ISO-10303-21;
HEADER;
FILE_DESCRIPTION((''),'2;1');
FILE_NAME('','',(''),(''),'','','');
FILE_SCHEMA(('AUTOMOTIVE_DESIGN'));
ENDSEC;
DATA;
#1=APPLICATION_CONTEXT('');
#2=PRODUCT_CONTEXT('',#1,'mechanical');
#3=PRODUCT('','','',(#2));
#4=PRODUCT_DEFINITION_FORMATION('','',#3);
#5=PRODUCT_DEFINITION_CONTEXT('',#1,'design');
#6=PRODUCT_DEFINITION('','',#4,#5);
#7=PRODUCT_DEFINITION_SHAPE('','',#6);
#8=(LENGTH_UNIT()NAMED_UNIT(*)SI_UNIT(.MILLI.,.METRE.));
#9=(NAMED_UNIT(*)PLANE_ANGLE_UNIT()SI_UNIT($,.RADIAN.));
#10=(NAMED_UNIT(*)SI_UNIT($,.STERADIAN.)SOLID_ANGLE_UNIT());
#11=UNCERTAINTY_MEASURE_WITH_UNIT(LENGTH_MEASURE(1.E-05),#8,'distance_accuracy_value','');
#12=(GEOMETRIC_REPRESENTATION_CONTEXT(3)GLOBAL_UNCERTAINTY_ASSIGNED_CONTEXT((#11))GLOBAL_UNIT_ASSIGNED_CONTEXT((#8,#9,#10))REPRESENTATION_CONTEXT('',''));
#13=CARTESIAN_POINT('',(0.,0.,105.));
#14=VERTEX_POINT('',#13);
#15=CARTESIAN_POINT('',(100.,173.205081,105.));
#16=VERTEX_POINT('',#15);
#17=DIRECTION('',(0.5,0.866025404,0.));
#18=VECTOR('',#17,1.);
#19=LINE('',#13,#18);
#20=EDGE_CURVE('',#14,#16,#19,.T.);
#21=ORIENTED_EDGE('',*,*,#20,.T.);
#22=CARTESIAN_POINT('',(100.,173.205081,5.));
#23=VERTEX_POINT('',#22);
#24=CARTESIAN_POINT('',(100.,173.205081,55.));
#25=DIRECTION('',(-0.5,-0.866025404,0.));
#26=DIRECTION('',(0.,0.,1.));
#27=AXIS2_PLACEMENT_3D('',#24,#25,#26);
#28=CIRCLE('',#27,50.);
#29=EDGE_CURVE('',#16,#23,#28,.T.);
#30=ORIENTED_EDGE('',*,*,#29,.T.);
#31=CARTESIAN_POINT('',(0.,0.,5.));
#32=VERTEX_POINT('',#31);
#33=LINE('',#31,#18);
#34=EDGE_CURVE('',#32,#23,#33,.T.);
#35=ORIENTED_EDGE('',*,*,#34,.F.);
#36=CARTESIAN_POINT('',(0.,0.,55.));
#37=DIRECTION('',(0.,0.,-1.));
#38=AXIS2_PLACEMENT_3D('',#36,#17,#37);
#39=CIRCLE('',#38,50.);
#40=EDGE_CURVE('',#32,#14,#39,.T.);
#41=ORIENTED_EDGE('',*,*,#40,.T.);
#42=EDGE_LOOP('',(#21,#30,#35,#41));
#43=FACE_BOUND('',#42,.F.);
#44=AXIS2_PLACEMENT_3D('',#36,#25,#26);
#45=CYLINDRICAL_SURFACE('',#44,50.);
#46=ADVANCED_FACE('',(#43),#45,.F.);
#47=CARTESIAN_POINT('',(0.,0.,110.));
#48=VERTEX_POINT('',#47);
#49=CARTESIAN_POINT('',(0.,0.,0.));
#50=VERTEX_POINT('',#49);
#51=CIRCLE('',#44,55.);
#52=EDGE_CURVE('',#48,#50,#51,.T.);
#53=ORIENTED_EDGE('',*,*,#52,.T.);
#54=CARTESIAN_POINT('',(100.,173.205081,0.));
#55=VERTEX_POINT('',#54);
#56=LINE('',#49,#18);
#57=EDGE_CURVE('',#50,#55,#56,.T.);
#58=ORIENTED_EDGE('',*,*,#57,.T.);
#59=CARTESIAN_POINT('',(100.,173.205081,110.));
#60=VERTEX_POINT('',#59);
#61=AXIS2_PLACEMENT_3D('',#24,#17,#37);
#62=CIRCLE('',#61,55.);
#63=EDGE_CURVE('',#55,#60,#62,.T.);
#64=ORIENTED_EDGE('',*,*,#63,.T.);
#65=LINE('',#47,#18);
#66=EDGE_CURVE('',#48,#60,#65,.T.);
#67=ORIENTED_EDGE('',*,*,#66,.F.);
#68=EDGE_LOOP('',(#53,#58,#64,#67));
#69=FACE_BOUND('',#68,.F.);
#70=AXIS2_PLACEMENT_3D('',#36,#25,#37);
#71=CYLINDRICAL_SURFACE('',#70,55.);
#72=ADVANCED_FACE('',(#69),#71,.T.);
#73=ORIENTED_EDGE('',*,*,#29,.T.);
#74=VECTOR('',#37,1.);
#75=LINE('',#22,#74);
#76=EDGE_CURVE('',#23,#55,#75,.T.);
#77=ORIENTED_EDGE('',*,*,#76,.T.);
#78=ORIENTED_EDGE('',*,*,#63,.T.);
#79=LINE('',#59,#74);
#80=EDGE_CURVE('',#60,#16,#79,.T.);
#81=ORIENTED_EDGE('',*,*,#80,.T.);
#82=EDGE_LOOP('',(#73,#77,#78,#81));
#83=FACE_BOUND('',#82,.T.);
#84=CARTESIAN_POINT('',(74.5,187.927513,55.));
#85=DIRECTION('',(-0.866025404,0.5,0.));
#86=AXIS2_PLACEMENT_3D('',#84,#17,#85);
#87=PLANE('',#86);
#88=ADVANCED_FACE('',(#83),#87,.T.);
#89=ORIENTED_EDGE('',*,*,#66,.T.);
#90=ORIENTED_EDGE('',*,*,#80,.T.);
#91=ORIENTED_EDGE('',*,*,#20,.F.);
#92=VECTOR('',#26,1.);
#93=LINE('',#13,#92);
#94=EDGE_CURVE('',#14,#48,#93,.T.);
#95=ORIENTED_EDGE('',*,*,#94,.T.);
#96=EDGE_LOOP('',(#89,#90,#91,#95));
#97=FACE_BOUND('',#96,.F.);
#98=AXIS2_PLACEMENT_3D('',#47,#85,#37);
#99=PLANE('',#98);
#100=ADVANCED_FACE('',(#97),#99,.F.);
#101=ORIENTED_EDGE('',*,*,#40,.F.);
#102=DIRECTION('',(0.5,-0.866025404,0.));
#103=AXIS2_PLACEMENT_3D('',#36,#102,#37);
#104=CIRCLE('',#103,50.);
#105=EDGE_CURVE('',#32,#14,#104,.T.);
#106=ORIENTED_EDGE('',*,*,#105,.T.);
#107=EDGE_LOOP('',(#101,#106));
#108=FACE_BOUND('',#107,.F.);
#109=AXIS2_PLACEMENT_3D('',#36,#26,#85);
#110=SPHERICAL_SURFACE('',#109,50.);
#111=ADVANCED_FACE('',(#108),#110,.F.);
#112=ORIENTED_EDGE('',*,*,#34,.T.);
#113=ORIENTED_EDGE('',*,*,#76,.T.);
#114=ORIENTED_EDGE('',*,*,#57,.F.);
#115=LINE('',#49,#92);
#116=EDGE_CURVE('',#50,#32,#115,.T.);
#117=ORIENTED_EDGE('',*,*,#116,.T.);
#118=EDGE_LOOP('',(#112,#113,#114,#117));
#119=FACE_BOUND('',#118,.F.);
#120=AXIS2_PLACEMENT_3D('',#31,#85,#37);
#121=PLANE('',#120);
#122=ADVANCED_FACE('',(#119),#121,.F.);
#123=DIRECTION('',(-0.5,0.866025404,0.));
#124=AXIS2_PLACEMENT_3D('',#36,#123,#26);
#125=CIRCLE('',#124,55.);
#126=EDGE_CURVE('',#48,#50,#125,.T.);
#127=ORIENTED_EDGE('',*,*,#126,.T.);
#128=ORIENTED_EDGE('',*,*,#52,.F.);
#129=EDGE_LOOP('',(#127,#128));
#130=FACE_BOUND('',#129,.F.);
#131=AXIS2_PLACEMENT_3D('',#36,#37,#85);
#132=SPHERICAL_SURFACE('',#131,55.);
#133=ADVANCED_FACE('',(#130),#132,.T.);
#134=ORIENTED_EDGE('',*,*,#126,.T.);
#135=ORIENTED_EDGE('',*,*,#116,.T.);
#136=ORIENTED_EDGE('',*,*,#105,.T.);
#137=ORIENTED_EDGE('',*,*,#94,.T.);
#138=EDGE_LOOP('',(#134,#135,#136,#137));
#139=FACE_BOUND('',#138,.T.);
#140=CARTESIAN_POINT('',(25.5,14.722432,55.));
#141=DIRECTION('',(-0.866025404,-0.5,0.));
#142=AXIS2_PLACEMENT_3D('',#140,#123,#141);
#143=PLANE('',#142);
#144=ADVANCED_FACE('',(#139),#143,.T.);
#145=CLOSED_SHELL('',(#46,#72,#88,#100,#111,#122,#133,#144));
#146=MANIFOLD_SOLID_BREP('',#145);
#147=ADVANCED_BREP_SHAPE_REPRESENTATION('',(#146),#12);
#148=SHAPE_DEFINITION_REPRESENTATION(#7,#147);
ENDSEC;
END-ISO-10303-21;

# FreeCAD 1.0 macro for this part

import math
import FreeCAD as App
import Part
import Sketcher
Q = App.Units.Quantity

doc = App.newDocument("Part")
body = doc.addObject("PartDesign::Body", "Body")

# Sketch on an angled plane
sketch1 = doc.addObject("Sketcher::SketchObject", "Sketch")
body.addObject(sketch1)
sketch1.Placement = App.Placement(App.Vector(0, 0, 0), App.Rotation(App.Vector(0.866025404, -0.5, 0), App.Vector(0, 0, 1), App.Vector(-0.5, -0.866025404, 0), "ZXY"))
sketch1.addGeometry([
    Part.LineSegment(App.Vector(0, 105, 0), App.Vector(0, 110, 0)),
    Part.ArcOfCircle(Part.Circle(App.Vector(0, 55, 0), App.Vector(0, 0, 1), 55), math.radians(90), math.radians(270)),
    Part.LineSegment(App.Vector(0, 0, 0), App.Vector(0, 5, 0)),
    Part.ArcOfCircle(Part.Circle(App.Vector(0, 55, 0), App.Vector(0, 0, 1), 50), math.radians(90), math.radians(270)),
], False)
sketch1.addConstraint([
    Sketcher.Constraint("Coincident", 0, 2, 1, 1),
    Sketcher.Constraint("Coincident", 1, 2, 2, 1),
    Sketcher.Constraint("Coincident", 2, 2, 3, 2),
    Sketcher.Constraint("Coincident", 3, 1, 0, 1),
    Sketcher.Constraint("Vertical", 0),
    Sketcher.Constraint("Vertical", 2),
    Sketcher.Constraint("Coincident", 1, 2, -1, 1),
    Sketcher.Constraint("Coincident", 3, 3, 1, 3),
    Sketcher.Constraint("PointOnObject", 1, 3, -2),
    Sketcher.Constraint("PointOnObject", 0, 2, -2),
    Sketcher.Constraint("Radius", 1, Q("55 mm")),
    Sketcher.Constraint("Radius", 3, Q("50 mm")),
])
revolution = doc.addObject("PartDesign::Revolution", "Revolution")
body.addObject(revolution)
revolution.Profile = sketch1
revolution.ReferenceAxis = (sketch1, ["V_Axis"])
revolution.Angle = 240

# Sketch on an angled plane
sketch2 = doc.addObject("Sketcher::SketchObject", "Sketch001")
body.addObject(sketch2)
sketch2.Placement = App.Placement(App.Vector(0, 0, 0), App.Rotation(App.Vector(-0.866025404, 0.5, 0), App.Vector(0, 0, 1), App.Vector(0.5, 0.866025404, 0), "ZXY"))
sketch2.addGeometry([
    Part.ArcOfCircle(Part.Circle(App.Vector(0, 55, 0), App.Vector(0, 0, 1), 50), math.radians(-90), math.radians(90)),
    Part.LineSegment(App.Vector(0, 5, 0), App.Vector(0, 0, 0)),
    Part.ArcOfCircle(Part.Circle(App.Vector(0, 55, 0), App.Vector(0, 0, 1), 55), math.radians(-90), math.radians(90)),
    Part.LineSegment(App.Vector(0, 110, 0), App.Vector(0, 105, 0)),
], False)
sketch2.addConstraint([
    Sketcher.Constraint("Coincident", 0, 1, 1, 1),
    Sketcher.Constraint("Coincident", 1, 2, 2, 1),
    Sketcher.Constraint("Coincident", 2, 2, 3, 1),
    Sketcher.Constraint("Coincident", 3, 2, 0, 2),
    Sketcher.Constraint("Vertical", 1),
    Sketcher.Constraint("Vertical", 3),
    Sketcher.Constraint("Coincident", 1, 2, -1, 1),
    Sketcher.Constraint("Coincident", 2, 3, 0, 3),
    Sketcher.Constraint("PointOnObject", 0, 3, -2),
    Sketcher.Constraint("PointOnObject", 2, 2, -2),
    Sketcher.Constraint("Radius", 0, Q("50 mm")),
    Sketcher.Constraint("Radius", 2, Q("55 mm")),
])
pad1 = doc.addObject("PartDesign::Pad", "Pad")
body.addObject(pad1)
pad1.Profile = sketch2
pad1.Length = 200

doc.recompute()
